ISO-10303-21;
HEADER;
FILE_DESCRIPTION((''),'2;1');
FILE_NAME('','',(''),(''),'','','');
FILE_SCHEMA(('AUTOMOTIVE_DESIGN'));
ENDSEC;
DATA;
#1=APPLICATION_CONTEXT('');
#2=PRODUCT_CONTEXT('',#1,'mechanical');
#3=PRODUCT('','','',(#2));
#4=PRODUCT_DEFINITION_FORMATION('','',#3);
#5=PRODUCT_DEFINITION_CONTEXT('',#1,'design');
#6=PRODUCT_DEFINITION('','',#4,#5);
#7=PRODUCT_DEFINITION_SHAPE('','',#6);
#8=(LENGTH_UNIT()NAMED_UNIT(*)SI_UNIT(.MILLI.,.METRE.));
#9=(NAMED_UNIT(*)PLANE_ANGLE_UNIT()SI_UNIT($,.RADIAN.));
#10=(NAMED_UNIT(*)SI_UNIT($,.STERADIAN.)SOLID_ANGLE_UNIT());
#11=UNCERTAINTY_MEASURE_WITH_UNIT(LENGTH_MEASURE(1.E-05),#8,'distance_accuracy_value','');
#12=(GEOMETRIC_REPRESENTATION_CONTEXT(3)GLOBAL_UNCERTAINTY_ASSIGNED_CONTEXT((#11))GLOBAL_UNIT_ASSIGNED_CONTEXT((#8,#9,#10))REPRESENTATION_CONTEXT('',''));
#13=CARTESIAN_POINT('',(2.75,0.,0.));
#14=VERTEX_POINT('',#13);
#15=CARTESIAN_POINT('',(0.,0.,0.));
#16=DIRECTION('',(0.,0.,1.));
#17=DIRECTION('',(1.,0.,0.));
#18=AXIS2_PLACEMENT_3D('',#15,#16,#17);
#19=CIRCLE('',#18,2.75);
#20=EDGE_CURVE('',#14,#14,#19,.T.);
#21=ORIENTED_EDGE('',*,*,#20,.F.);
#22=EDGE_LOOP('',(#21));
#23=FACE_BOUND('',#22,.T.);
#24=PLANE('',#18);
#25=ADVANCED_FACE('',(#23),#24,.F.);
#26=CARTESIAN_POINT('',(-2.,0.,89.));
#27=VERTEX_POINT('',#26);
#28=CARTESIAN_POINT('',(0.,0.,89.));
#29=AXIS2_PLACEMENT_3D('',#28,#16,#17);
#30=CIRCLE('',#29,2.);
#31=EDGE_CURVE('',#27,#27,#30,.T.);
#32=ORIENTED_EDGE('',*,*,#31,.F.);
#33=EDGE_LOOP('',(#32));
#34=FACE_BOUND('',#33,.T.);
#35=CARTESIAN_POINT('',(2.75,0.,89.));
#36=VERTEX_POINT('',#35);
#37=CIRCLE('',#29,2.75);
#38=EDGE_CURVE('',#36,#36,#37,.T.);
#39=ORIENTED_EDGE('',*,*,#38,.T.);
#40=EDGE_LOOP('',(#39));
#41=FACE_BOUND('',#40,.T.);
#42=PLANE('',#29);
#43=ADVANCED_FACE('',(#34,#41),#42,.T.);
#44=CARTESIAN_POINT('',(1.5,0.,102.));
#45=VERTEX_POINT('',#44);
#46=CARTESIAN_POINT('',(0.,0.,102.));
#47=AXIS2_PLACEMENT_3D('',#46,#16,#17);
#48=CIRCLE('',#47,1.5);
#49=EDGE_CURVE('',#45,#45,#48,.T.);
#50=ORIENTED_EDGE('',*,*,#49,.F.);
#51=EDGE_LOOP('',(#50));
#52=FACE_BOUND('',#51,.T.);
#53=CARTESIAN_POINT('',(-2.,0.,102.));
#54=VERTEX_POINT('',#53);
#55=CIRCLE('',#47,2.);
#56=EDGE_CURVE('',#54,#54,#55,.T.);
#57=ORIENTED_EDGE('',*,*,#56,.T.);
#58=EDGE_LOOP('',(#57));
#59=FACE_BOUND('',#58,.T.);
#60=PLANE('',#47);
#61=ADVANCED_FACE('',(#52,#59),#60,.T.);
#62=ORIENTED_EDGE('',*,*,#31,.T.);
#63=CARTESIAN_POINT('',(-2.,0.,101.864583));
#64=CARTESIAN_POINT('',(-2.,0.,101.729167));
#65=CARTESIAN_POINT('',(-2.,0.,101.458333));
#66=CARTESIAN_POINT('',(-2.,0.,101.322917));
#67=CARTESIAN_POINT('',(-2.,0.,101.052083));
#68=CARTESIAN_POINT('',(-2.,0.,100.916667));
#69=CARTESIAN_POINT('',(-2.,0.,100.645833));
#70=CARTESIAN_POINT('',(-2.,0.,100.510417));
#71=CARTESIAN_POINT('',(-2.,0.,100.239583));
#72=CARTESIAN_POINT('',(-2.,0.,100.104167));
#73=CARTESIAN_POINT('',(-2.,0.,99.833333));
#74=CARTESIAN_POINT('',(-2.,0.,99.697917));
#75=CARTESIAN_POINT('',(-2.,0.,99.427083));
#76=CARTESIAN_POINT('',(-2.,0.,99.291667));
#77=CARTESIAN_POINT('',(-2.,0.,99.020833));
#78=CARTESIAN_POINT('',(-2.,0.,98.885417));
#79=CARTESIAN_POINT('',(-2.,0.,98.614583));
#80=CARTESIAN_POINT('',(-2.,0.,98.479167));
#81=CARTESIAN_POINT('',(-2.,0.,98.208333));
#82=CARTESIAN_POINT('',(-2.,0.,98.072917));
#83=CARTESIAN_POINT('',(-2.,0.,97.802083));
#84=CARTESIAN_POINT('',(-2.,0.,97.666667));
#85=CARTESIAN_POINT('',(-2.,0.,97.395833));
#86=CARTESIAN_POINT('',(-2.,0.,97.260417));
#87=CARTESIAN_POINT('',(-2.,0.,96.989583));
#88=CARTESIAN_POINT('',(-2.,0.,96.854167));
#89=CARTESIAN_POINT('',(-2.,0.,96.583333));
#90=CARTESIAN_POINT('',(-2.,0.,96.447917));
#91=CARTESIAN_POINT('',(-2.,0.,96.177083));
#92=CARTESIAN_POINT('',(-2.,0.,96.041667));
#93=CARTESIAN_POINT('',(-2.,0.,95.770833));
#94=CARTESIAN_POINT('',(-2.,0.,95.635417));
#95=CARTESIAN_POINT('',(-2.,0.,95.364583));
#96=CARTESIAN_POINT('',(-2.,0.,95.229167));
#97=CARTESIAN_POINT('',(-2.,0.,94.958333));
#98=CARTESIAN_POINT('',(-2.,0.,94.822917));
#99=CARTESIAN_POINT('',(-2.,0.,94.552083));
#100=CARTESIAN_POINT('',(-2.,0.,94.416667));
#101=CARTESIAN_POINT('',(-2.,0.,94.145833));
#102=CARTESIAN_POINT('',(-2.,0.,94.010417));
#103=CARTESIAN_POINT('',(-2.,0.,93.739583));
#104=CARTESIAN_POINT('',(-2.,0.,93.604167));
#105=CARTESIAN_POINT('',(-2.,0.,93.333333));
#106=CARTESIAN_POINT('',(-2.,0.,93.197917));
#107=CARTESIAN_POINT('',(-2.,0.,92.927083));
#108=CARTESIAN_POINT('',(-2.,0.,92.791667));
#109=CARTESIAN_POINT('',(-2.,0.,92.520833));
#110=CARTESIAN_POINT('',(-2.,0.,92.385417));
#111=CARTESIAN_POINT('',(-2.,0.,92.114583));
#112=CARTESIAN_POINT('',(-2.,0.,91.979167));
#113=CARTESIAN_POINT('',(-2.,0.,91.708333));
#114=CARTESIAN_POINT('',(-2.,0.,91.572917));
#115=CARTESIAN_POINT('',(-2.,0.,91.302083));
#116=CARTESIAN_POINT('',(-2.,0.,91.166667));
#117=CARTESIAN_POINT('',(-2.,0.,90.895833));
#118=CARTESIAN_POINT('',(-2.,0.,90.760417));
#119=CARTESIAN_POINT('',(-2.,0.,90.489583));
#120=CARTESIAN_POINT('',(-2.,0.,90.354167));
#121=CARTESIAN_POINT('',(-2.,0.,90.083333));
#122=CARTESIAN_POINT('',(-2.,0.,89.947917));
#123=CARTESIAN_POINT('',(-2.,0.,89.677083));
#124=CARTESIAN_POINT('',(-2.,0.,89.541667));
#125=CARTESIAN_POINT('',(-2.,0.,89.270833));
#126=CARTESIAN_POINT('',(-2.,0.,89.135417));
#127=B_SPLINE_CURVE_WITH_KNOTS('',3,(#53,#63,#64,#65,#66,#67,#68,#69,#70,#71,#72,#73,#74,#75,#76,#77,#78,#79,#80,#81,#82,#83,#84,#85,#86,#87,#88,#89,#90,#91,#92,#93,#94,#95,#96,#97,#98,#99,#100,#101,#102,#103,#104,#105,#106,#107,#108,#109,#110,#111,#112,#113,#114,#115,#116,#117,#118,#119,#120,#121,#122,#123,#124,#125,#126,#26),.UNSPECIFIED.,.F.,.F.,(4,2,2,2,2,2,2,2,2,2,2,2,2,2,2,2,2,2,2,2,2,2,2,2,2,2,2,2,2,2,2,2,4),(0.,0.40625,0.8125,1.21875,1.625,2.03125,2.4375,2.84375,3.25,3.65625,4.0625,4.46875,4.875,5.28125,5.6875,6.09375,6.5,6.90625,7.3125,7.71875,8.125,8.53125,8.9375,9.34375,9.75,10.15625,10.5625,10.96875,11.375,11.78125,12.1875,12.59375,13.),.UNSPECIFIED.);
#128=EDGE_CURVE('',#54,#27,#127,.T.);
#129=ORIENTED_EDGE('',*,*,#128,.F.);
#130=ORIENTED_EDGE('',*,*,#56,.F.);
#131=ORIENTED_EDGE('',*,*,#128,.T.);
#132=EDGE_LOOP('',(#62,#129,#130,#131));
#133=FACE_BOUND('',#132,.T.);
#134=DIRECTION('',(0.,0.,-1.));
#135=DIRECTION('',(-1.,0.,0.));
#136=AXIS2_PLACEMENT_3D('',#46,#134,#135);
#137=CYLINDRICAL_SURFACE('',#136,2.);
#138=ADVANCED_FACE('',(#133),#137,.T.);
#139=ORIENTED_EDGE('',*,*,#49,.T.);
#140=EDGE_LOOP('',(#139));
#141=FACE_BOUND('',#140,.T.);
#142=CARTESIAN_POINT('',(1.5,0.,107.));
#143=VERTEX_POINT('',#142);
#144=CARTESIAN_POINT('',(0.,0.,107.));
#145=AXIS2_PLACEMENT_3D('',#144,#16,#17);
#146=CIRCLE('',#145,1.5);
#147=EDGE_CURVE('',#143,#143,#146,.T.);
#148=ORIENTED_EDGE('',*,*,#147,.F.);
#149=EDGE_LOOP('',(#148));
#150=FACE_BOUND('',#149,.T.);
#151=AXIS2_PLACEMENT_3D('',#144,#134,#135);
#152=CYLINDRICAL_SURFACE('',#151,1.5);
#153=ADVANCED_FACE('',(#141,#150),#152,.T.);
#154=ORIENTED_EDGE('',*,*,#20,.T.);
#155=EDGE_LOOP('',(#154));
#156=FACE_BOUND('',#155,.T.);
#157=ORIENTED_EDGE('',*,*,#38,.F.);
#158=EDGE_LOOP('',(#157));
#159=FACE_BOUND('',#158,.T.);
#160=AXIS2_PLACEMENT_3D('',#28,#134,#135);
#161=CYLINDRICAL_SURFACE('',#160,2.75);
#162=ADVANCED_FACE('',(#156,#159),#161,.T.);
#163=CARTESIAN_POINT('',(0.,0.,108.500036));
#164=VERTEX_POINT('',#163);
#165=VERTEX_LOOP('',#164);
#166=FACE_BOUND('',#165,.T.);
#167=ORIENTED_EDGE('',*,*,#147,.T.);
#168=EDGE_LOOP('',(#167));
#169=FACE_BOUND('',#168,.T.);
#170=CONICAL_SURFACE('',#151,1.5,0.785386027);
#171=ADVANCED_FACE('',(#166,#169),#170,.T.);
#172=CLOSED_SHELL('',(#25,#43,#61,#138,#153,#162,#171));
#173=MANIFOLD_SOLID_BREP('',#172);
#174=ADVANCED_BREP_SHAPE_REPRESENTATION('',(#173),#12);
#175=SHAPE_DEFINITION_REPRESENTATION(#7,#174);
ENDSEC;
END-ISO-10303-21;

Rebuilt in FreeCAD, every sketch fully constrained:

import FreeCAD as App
import Part
import Sketcher

V = App.Vector
Q = App.Units.Quantity


def add_polygon(sketch, points):
    """Adds a closed chain of lines whose ends are joined by coincident constraints."""
    first, n = sketch.GeometryCount, len(points)
    for a, b in zip(points, points[1:] + points[:1]):
        sketch.addGeometry(Part.LineSegment(App.Vector(*a, 0), App.Vector(*b, 0)), False)
    for i in range(n):
        sketch.addConstraint(Sketcher.Constraint("Coincident", first + i, 2, first + (i + 1) % n, 1))

doc = App.newDocument("Part")
body = doc.addObject("PartDesign::Body", "Body")

# Sketch on XY plane
sketch1 = body.newObject("Sketcher::SketchObject", "Sketch")
sketch1.AttachmentSupport = (doc.getObject("XY_Plane"), [""])
sketch1.MapMode = "FlatFace"
sketch1.addGeometry(Part.Circle(V(0, 0, 0), V(0, 0, 1), 2.75), False)
sketch1.addConstraint(Sketcher.Constraint("Coincident", 0, 3, -1, 1))
sketch1.addConstraint(Sketcher.Constraint("Diameter", 0, Q("5.5 mm")))
pad1 = body.newObject("PartDesign::Pad", "Pad")
pad1.Profile = sketch1
pad1.Length = 89

# Sketch on XY plane
sketch2 = body.newObject("Sketcher::SketchObject", "Sketch001")
sketch2.AttachmentSupport = (doc.getObject("XY_Plane"), [""])
sketch2.MapMode = "FlatFace"
sketch2.AttachmentOffset = App.Placement(V(0, 0, 89), App.Rotation())
sketch2.addGeometry(Part.Circle(V(0, 0, 0), V(0, 0, 1), 2), False)
sketch2.addConstraint(Sketcher.Constraint("Coincident", 0, 3, -1, 1))
sketch2.addConstraint(Sketcher.Constraint("Diameter", 0, Q("4 mm")))
pad2 = body.newObject("PartDesign::Pad", "Pad001")
pad2.Profile = sketch2
pad2.Length = 13

# Sketch on XY plane
sketch3 = body.newObject("Sketcher::SketchObject", "Sketch002")
sketch3.AttachmentSupport = (doc.getObject("XY_Plane"), [""])
sketch3.MapMode = "FlatFace"
sketch3.AttachmentOffset = App.Placement(V(0, 0, 102), App.Rotation())
sketch3.addGeometry(Part.Circle(V(0, 0, 0), V(0, 0, 1), 1.5), False)
sketch3.addConstraint(Sketcher.Constraint("Coincident", 0, 3, -1, 1))
sketch3.addConstraint(Sketcher.Constraint("Diameter", 0, Q("3 mm")))
pad3 = body.newObject("PartDesign::Pad", "Pad002")
pad3.Profile = sketch3
pad3.Length = 5

# Sketch on XZ plane
sketch4 = body.newObject("Sketcher::SketchObject", "Sketch003")
sketch4.AttachmentSupport = (doc.getObject("XZ_Plane"), [""])
sketch4.MapMode = "FlatFace"
add_polygon(sketch4, [(0, 108.500036), (0, 107), (-1.5, 107)])  # lines 0-2
sketch4.addConstraint(Sketcher.Constraint("Vertical", 0))
sketch4.addConstraint(Sketcher.Constraint("Horizontal", 1))
sketch4.addConstraint(Sketcher.Constraint("PointOnObject", 0, 2, -2))
sketch4.addConstraint(Sketcher.Constraint("DistanceX", 1, 2, 1, 1, Q("1.5 mm")))
sketch4.addConstraint(Sketcher.Constraint("DistanceY", -1, 1, 0, 2, Q("107 mm")))
sketch4.addConstraint(Sketcher.Constraint("DistanceY", 0, 2, 0, 1, Q("1.500036 mm")))
revolution = body.newObject("PartDesign::Revolution", "Revolution")
revolution.Profile = sketch4
revolution.ReferenceAxis = (sketch4, ["V_Axis"])
revolution.Angle = 360

doc.recompute()
